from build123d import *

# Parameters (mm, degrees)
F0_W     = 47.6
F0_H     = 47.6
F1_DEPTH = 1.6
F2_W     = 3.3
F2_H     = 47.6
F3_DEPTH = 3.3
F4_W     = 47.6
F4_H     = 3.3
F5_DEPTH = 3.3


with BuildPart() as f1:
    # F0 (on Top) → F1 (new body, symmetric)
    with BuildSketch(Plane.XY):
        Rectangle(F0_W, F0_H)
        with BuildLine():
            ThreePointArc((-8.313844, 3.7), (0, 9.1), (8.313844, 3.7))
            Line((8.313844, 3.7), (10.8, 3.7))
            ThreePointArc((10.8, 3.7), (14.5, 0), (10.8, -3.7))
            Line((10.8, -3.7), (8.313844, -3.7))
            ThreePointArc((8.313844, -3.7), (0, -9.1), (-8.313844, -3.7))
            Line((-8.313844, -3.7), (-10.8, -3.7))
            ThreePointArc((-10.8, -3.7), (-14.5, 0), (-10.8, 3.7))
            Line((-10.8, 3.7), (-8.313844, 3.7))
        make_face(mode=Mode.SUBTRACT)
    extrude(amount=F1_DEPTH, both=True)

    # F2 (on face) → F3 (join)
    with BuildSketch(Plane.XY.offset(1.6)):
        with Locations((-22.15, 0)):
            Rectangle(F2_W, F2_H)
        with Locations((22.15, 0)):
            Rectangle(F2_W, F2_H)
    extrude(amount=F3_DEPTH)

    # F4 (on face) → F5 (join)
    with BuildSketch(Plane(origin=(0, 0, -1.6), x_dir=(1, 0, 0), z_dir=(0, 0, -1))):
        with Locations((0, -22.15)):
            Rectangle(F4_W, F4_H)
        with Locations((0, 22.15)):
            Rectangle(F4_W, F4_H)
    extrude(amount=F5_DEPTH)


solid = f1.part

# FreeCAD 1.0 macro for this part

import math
import FreeCAD as App
import Part
import Sketcher

V = App.Vector

doc = App.newDocument("Part")
body = doc.addObject("PartDesign::Body", "Body")

# Sketch on XY plane
sketch1 = body.newObject("Sketcher::SketchObject", "Sketch")
sketch1.AttachmentSupport = (doc.getObject("XY_Plane"), [""])
sketch1.MapMode = "FlatFace"
sketch1.addGeometry([
    Part.LineSegment(V(-23.8, 23.8, 0), V(-23.8, -23.8, 0)),  # 0
    Part.LineSegment(V(-23.8, -23.8, 0), V(23.8, -23.8, 0)),  # 1
    Part.LineSegment(V(23.8, -23.8, 0), V(23.8, 23.8, 0)),  # 2
    Part.LineSegment(V(23.8, 23.8, 0), V(-23.8, 23.8, 0)),  # 3
    Part.LineSegment(V(-10.8, 3.7, 0), V(-8.3, 3.7, 0)),  # 4
    Part.ArcOfCircle(Part.Circle(V(0, 0, 0), V(0, 0, 1), 9.1), math.radians(24), math.radians(156)),  # 5
    Part.LineSegment(V(8.3, 3.7, 0), V(10.8, 3.7, 0)),  # 6
    Part.ArcOfCircle(Part.Circle(V(10.8, 0, 0), V(0, 0, 1), 3.7), math.radians(-90), math.radians(90)),  # 7
    Part.LineSegment(V(10.8, -3.7, 0), V(8.3, -3.7, 0)),  # 8
    Part.ArcOfCircle(Part.Circle(V(0, 0, 0), V(0, 0, 1), 9.1), math.radians(-156), math.radians(-24)),  # 9
    Part.LineSegment(V(-8.3, -3.7, 0), V(-10.8, -3.7, 0)),  # 10
    Part.ArcOfCircle(Part.Circle(V(-10.8, 0, 0), V(0, 0, 1), 3.7), math.radians(90), math.radians(270)),  # 11
], False)
sketch1.addConstraint([
    Sketcher.Constraint("Coincident", 0, 2, 1, 1),
    Sketcher.Constraint("Coincident", 1, 2, 2, 1),
    Sketcher.Constraint("Coincident", 2, 2, 3, 1),
    Sketcher.Constraint("Coincident", 3, 2, 0, 1),
    Sketcher.Constraint("Coincident", 4, 2, 5, 2),
    Sketcher.Constraint("Coincident", 5, 1, 6, 1),
    Sketcher.Constraint("Tangent", 6, 2, 7, 2),
    Sketcher.Constraint("Tangent", 7, 1, 8, 1),
    Sketcher.Constraint("Coincident", 8, 2, 9, 2),
    Sketcher.Constraint("Coincident", 9, 1, 10, 1),
    Sketcher.Constraint("Tangent", 10, 2, 11, 2),
    Sketcher.Constraint("Tangent", 11, 1, 4, 1),
    Sketcher.Constraint("Vertical", 0),
    Sketcher.Constraint("Horizontal", 1),
    Sketcher.Constraint("Vertical", 2),
    Sketcher.Constraint("Horizontal", 3),
    Sketcher.Constraint("Horizontal", 4),
    Sketcher.Constraint("Horizontal", 6),
    Sketcher.Constraint("Horizontal", 8),
    Sketcher.Constraint("Horizontal", 10),
    Sketcher.Constraint("Coincident", 5, 3, -1, 1),
    Sketcher.Constraint("Coincident", 9, 3, -1, 1),
    Sketcher.Constraint("Equal", 5, 9),
    Sketcher.Constraint("Equal", 7, 11),
    Sketcher.Constraint("Symmetric", 7, 3, 11, 3, -1, 1),
    Sketcher.Constraint("Symmetric", 0, 2, 2, 2, -1, 1),
    Sketcher.Constraint("PointOnObject", 7, 3, -1),
    Sketcher.Constraint("Equal", 3, 0),
    Sketcher.Constraint("Radius", 5, 9.1),
    Sketcher.Constraint("Radius", 7, 3.7),
    Sketcher.Constraint("DistanceX", 1, 1, 1, 2, 47.6),
    Sketcher.Constraint("DistanceX", 0, 2, 11, 3, 13.0),
])
pad1 = body.newObject("PartDesign::Pad", "Pad")
pad1.Profile = sketch1
pad1.Length = 3.2
pad1.Midplane = True

# Sketch on XY plane
sketch2 = body.newObject("Sketcher::SketchObject", "Sketch001")
sketch2.AttachmentSupport = (doc.getObject("XY_Plane"), [""])
sketch2.MapMode = "FlatFace"
sketch2.AttachmentOffset = App.Placement(V(0, 0, 1.6), App.Rotation())
sketch2.addGeometry([
    Part.LineSegment(V(-23.8, 23.8, 0), V(-23.8, -23.8, 0)),  # 0
    Part.LineSegment(V(-23.8, -23.8, 0), V(-20.5, -23.8, 0)),  # 1
    Part.LineSegment(V(-20.5, -23.8, 0), V(-20.5, 23.8, 0)),  # 2
    Part.LineSegment(V(-20.5, 23.8, 0), V(-23.8, 23.8, 0)),  # 3
    Part.LineSegment(V(20.5, 23.8, 0), V(20.5, -23.8, 0)),  # 4
    Part.LineSegment(V(20.5, -23.8, 0), V(23.8, -23.8, 0)),  # 5
    Part.LineSegment(V(23.8, -23.8, 0), V(23.8, 23.8, 0)),  # 6
    Part.LineSegment(V(23.8, 23.8, 0), V(20.5, 23.8, 0)),  # 7
], False)
sketch2.addConstraint([
    Sketcher.Constraint("Coincident", 0, 2, 1, 1),
    Sketcher.Constraint("Coincident", 1, 2, 2, 1),
    Sketcher.Constraint("Coincident", 2, 2, 3, 1),
    Sketcher.Constraint("Coincident", 3, 2, 0, 1),
    Sketcher.Constraint("Coincident", 4, 2, 5, 1),
    Sketcher.Constraint("Coincident", 5, 2, 6, 1),
    Sketcher.Constraint("Coincident", 6, 2, 7, 1),
    Sketcher.Constraint("Coincident", 7, 2, 4, 1),
    Sketcher.Constraint("Vertical", 0),
    Sketcher.Constraint("Horizontal", 1),
    Sketcher.Constraint("Vertical", 2),
    Sketcher.Constraint("Horizontal", 3),
    Sketcher.Constraint("Vertical", 4),
    Sketcher.Constraint("Horizontal", 5),
    Sketcher.Constraint("Vertical", 6),
    Sketcher.Constraint("Horizontal", 7),
    Sketcher.Constraint("Symmetric", 2, 2, 4, 2, -1, 1),
    Sketcher.Constraint("Symmetric", 0, 2, 6, 2, -1, 1),
    Sketcher.Constraint("Horizontal", 1, 2, 4, 2),
    Sketcher.Constraint("DistanceX", 1, 1, 1, 2, 3.3),
    Sketcher.Constraint("DistanceY", 0, 2, 0, 1, 47.6),
    Sketcher.Constraint("DistanceX", 1, 2, 4, 2, 41.0),
])
pad2 = body.newObject("PartDesign::Pad", "Pad001")
pad2.Profile = sketch2
pad2.Length = 3.3

# Sketch on XY plane
sketch3 = body.newObject("Sketcher::SketchObject", "Sketch002")
sketch3.AttachmentSupport = (doc.getObject("XY_Plane"), [""])
sketch3.MapMode = "FlatFace"
sketch3.AttachmentOffset = App.Placement(V(0, 0, -1.6), App.Rotation())
sketch3.addGeometry([
    Part.LineSegment(V(-23.8, 20.5, 0), V(-23.8, 23.8, 0)),  # 0
    Part.LineSegment(V(-23.8, 23.8, 0), V(23.8, 23.8, 0)),  # 1
    Part.LineSegment(V(23.8, 23.8, 0), V(23.8, 20.5, 0)),  # 2
    Part.LineSegment(V(23.8, 20.5, 0), V(-23.8, 20.5, 0)),  # 3
    Part.LineSegment(V(-23.8, -23.8, 0), V(-23.8, -20.5, 0)),  # 4
    Part.LineSegment(V(-23.8, -20.5, 0), V(23.8, -20.5, 0)),  # 5
    Part.LineSegment(V(23.8, -20.5, 0), V(23.8, -23.8, 0)),  # 6
    Part.LineSegment(V(23.8, -23.8, 0), V(-23.8, -23.8, 0)),  # 7
], False)
sketch3.addConstraint([
    Sketcher.Constraint("Coincident", 0, 2, 1, 1),
    Sketcher.Constraint("Coincident", 1, 2, 2, 1),
    Sketcher.Constraint("Coincident", 2, 2, 3, 1),
    Sketcher.Constraint("Coincident", 3, 2, 0, 1),
    Sketcher.Constraint("Coincident", 4, 2, 5, 1),
    Sketcher.Constraint("Coincident", 5, 2, 6, 1),
    Sketcher.Constraint("Coincident", 6, 2, 7, 1),
    Sketcher.Constraint("Coincident", 7, 2, 4, 1),
    Sketcher.Constraint("Vertical", 0),
    Sketcher.Constraint("Horizontal", 1),
    Sketcher.Constraint("Vertical", 2),
    Sketcher.Constraint("Horizontal", 3),
    Sketcher.Constraint("Vertical", 4),
    Sketcher.Constraint("Horizontal", 5),
    Sketcher.Constraint("Vertical", 6),
    Sketcher.Constraint("Horizontal", 7),
    Sketcher.Constraint("Symmetric", 2, 2, 4, 2, -1, 1),
    Sketcher.Constraint("Symmetric", 0, 2, 6, 2, -1, 1),
    Sketcher.Constraint("Vertical", 3, 2, 4, 2),
    Sketcher.Constraint("DistanceX", 1, 1, 1, 2, 47.6),
    Sketcher.Constraint("DistanceY", 0, 1, 0, 2, 3.3),
    Sketcher.Constraint("DistanceY", 4, 2, 3, 2, 41.0),
])
pad3 = body.newObject("PartDesign::Pad", "Pad002")
pad3.Profile = sketch3
pad3.Length = 3.3
pad3.Reversed = True

doc.recompute()
